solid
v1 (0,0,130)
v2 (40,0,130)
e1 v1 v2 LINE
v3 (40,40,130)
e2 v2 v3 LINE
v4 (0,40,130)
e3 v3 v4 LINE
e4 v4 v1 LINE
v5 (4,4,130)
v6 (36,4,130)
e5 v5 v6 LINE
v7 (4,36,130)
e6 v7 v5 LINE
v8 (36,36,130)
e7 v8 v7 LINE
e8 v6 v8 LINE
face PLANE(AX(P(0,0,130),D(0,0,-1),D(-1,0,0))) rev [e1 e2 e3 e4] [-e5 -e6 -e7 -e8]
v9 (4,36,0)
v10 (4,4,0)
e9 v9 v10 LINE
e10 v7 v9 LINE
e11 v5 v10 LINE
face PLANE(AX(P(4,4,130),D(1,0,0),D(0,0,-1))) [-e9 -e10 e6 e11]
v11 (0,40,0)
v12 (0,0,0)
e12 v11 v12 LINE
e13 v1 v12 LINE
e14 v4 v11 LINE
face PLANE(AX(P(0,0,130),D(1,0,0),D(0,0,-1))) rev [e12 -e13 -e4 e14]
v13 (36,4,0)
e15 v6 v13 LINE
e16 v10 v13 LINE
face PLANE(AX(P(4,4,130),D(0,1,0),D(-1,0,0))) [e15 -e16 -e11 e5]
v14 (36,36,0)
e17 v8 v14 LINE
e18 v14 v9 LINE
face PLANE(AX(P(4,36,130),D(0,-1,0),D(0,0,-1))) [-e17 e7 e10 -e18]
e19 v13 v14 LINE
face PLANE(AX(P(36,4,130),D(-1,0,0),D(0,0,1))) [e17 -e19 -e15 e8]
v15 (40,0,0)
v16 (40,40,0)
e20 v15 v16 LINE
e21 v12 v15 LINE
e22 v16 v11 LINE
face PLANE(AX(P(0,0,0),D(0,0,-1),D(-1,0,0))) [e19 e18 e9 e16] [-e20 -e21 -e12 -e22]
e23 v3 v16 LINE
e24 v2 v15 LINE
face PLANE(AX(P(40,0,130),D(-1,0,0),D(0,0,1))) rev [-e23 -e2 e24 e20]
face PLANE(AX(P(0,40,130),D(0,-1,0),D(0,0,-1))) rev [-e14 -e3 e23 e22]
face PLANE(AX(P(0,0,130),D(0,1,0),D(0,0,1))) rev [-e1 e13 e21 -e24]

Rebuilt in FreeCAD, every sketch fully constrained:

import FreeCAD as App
import Part
import Sketcher

V = App.Vector
Q = App.Units.Quantity

doc = App.newDocument("Part")
body = doc.addObject("PartDesign::Body", "Body")

# Sketch on XY plane
sketch1 = body.newObject("Sketcher::SketchObject", "Sketch")
sketch1.AttachmentSupport = (doc.getObject("XY_Plane"), [""])
sketch1.MapMode = "FlatFace"
sketch1.addGeometry([
    Part.LineSegment(V(0, 40, 0), V(0, 0, 0)),  # 0
    Part.LineSegment(V(0, 0, 0), V(40, 0, 0)),  # 1
    Part.LineSegment(V(40, 0, 0), V(40, 40, 0)),  # 2
    Part.LineSegment(V(40, 40, 0), V(0, 40, 0)),  # 3
    Part.LineSegment(V(36, 4, 0), V(4, 4, 0)),  # 4
    Part.LineSegment(V(4, 4, 0), V(4, 36, 0)),  # 5
    Part.LineSegment(V(4, 36, 0), V(36, 36, 0)),  # 6
    Part.LineSegment(V(36, 36, 0), V(36, 4, 0)),  # 7
], False)
sketch1.addConstraint([
    Sketcher.Constraint("Coincident", 0, 2, 1, 1),
    Sketcher.Constraint("Coincident", 1, 2, 2, 1),
    Sketcher.Constraint("Coincident", 2, 2, 3, 1),
    Sketcher.Constraint("Coincident", 3, 2, 0, 1),
    Sketcher.Constraint("Coincident", 4, 2, 5, 1),
    Sketcher.Constraint("Coincident", 5, 2, 6, 1),
    Sketcher.Constraint("Coincident", 6, 2, 7, 1),
    Sketcher.Constraint("Coincident", 7, 2, 4, 1),
    Sketcher.Constraint("Vertical", 0),
    Sketcher.Constraint("Horizontal", 1),
    Sketcher.Constraint("Vertical", 2),
    Sketcher.Constraint("Horizontal", 3),
    Sketcher.Constraint("Horizontal", 4),
    Sketcher.Constraint("Vertical", 5),
    Sketcher.Constraint("Horizontal", 6),
    Sketcher.Constraint("Vertical", 7),
    Sketcher.Constraint("Coincident", 0, 2, -1, 1),
    Sketcher.Constraint("Equal", 3, 0),
    Sketcher.Constraint("Equal", 6, 5),
    Sketcher.Constraint("DistanceX", 1, 1, 1, 2, Q("40 mm")),
    Sketcher.Constraint("DistanceX", 4, 2, 4, 1, Q("32 mm")),
    Sketcher.Constraint("DistanceX", -1, 1, 4, 2, Q("4 mm")),
    Sketcher.Constraint("DistanceY", -1, 1, 4, 2, Q("4 mm")),
])
pad1 = body.newObject("PartDesign::Pad", "Pad")
pad1.Profile = sketch1
pad1.Length = 130

doc.recompute()
